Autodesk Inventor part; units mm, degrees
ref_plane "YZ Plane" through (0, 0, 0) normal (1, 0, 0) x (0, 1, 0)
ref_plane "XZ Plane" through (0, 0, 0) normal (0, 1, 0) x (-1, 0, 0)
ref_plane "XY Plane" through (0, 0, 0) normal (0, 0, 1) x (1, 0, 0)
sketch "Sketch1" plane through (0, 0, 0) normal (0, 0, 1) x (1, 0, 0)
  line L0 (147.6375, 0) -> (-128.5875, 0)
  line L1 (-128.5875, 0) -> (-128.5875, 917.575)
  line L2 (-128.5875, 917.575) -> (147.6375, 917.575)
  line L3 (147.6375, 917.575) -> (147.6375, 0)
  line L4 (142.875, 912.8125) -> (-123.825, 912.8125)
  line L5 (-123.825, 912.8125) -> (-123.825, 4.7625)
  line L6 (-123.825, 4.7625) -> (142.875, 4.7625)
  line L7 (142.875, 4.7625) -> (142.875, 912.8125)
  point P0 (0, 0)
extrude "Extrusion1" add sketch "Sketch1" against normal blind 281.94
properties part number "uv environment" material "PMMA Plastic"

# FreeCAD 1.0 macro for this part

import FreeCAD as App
import Part
import Sketcher

V = App.Vector
Q = App.Units.Quantity


def add_polygon(sketch, points):
    """Adds a closed chain of lines whose ends are joined by coincident constraints."""
    first, n = sketch.GeometryCount, len(points)
    for a, b in zip(points, points[1:] + points[:1]):
        sketch.addGeometry(Part.LineSegment(App.Vector(*a, 0), App.Vector(*b, 0)), False)
    for i in range(n):
        sketch.addConstraint(Sketcher.Constraint("Coincident", first + i, 2, first + (i + 1) % n, 1))

doc = App.newDocument("Part")
params = doc.addObject("Spreadsheet::Sheet", "Params")
for row, (alias, value) in enumerate([
    ("sketch1_width", "10.5 in"),
    ("sketch1_height", "35.75 in"),
    ("sketch1_width2", "10.875 in"),
    ("sketch1_height2", "36.125 in"),
    ("pad1_length", "11.1 in"),
], start=1):
    params.set(f"A{row}", alias)
    params.set(f"B{row}", "=" + value)
    params.setAlias(f"B{row}", alias)

body = doc.addObject("PartDesign::Body", "Body")

# Sketch on XY plane
sketch1 = doc.addObject("Sketcher::SketchObject", "Sketch")
body.addObject(sketch1)
sketch1.AttachmentSupport = (doc.XY_Plane, [""])
sketch1.MapMode = "FlatFace"
add_polygon(sketch1, [(-128.5875, 0), (147.6375, 0), (147.6375, 917.575), (-128.5875, 917.575)])  # lines 0-3
add_polygon(sketch1, [(-123.825, 912.8125), (142.875, 912.8125), (142.875, 4.7625), (-123.825, 4.7625)])  # lines 4-7
sketch1.addConstraint([
    Sketcher.Constraint("Horizontal", 0),
    Sketcher.Constraint("Vertical", 1),
    Sketcher.Constraint("Horizontal", 2),
    Sketcher.Constraint("Vertical", 3),
    Sketcher.Constraint("Horizontal", 4),
    Sketcher.Constraint("Vertical", 5),
    Sketcher.Constraint("Horizontal", 6),
    Sketcher.Constraint("Vertical", 7),
    Sketcher.Constraint("PointOnObject", 0, 2, -1),
    Sketcher.Constraint("DistanceX", 4, 1, 4, 2, Q("10.5 in")),
    Sketcher.Constraint("DistanceY", 5, 2, 5, 1, Q("35.75 in")),
    Sketcher.Constraint("DistanceX", 0, 1, 0, 2, Q("10.875 in")),
    Sketcher.Constraint("DistanceY", 1, 1, 1, 2, Q("36.125 in")),
    Sketcher.Constraint("DistanceX", -1, 1, 0, 2, Q("5.8125 in")),
    Sketcher.Constraint("DistanceX", -1, 1, 4, 2, Q("5.625 in")),
    Sketcher.Constraint("DistanceY", -1, 1, 4, 2, Q("35.9375 in")),
])
sketch1.setExpression("Constraints[17]", "Params.sketch1_width")
sketch1.setExpression("Constraints[18]", "Params.sketch1_height")
sketch1.setExpression("Constraints[19]", "Params.sketch1_width2")
sketch1.setExpression("Constraints[20]", "Params.sketch1_height2")
pad1 = doc.addObject("PartDesign::Pad", "Pad")
body.addObject(pad1)
pad1.Profile = sketch1
pad1.setExpression("Length", "Params.pad1_length")
pad1.Reversed = True

doc.recompute()
